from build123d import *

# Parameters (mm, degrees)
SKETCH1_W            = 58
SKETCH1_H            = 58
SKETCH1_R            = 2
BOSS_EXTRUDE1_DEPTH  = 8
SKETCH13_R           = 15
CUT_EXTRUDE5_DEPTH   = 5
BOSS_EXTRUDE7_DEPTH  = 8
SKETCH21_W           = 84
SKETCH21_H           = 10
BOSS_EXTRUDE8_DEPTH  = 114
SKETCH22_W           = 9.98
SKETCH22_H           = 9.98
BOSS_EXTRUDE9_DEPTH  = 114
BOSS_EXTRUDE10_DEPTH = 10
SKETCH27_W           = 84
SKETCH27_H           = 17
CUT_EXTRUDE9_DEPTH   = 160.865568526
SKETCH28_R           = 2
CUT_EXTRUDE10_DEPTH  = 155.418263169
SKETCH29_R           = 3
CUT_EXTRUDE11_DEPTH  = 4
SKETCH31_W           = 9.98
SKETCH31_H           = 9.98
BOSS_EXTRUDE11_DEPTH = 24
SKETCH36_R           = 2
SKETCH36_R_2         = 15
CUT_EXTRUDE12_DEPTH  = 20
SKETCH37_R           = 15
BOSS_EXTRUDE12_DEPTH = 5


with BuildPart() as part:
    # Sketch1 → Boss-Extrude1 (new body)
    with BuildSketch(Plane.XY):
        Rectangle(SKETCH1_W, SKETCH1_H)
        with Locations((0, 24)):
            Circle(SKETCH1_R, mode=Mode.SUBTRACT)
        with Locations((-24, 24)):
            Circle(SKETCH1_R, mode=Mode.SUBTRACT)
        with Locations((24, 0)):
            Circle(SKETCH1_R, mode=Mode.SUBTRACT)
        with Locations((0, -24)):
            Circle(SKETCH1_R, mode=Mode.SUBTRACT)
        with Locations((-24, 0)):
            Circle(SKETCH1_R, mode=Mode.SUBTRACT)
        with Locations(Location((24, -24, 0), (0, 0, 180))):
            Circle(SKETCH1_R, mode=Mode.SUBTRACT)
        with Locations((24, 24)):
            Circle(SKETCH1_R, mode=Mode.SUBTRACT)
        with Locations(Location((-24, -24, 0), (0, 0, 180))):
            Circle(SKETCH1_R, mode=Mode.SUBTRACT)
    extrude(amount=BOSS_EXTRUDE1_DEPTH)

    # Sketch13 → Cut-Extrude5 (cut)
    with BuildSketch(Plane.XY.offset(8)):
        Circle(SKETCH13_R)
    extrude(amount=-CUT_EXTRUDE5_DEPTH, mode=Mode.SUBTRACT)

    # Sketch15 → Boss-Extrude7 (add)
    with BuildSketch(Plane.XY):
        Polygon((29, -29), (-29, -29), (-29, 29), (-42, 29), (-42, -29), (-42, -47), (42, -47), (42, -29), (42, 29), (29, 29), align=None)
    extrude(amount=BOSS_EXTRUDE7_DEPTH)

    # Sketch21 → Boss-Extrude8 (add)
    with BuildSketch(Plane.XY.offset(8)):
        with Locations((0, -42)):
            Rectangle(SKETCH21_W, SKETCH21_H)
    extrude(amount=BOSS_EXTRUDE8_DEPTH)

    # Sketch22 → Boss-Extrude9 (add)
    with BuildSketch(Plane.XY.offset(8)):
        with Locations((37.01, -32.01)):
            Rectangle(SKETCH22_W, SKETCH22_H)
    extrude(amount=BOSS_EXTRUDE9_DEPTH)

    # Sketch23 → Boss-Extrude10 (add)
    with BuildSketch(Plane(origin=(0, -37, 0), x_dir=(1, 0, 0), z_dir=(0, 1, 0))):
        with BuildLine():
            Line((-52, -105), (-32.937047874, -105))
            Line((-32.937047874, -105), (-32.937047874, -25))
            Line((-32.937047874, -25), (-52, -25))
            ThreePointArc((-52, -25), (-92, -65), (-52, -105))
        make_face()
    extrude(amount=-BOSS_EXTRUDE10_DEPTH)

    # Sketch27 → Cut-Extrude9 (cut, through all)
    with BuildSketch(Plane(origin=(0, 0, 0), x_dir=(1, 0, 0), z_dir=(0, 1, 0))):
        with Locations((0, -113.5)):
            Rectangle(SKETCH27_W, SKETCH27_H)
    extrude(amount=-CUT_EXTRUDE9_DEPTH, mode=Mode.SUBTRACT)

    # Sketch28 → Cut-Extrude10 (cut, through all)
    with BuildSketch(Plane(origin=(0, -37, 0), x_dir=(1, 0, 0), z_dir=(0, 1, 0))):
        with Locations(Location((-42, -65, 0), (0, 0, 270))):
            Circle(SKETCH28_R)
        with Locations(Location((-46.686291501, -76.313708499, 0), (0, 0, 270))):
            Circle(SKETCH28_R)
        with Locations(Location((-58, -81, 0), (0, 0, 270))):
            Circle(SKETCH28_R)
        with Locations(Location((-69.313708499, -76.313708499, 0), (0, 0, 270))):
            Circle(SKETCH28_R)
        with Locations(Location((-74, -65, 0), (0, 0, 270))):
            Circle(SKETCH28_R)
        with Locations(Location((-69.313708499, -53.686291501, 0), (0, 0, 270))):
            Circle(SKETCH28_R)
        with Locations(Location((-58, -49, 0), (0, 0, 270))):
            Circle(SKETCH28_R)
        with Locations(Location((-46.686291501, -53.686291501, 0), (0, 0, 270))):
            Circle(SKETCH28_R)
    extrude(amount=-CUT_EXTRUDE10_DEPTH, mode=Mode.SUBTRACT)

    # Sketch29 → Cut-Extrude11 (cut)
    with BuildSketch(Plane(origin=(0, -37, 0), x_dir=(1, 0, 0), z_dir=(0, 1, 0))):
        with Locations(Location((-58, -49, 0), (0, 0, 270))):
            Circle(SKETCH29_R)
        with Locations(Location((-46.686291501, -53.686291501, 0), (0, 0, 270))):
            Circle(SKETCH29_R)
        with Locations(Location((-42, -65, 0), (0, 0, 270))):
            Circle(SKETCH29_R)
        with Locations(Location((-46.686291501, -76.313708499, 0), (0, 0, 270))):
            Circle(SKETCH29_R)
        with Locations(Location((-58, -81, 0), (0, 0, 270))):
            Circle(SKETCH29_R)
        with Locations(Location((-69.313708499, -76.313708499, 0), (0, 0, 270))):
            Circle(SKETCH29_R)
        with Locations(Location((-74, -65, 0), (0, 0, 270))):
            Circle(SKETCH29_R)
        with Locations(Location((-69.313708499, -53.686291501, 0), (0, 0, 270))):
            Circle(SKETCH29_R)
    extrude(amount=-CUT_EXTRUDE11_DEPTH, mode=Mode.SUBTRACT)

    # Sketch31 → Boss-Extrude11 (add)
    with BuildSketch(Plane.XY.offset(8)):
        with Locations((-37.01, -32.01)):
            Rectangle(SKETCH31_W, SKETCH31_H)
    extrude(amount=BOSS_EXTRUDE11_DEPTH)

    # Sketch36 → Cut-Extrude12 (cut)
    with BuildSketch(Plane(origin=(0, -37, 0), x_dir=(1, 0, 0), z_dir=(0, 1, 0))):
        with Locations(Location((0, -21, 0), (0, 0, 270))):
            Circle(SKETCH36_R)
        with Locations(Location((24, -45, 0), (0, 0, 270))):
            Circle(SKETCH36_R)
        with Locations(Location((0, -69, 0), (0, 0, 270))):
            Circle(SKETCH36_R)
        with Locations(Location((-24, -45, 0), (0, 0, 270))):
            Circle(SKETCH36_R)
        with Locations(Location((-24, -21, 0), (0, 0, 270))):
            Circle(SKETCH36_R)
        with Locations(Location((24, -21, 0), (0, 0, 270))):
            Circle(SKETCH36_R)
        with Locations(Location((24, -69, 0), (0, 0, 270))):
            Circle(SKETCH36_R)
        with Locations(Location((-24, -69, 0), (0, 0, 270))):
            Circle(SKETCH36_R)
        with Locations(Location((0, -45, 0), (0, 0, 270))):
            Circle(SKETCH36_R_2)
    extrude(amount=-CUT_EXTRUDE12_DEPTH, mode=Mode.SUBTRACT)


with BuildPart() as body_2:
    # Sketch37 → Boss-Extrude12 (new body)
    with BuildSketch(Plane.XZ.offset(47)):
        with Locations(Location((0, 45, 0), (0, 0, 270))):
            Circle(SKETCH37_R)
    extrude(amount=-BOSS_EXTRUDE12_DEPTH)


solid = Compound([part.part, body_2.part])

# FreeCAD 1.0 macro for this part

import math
import FreeCAD as App
import Part
import Sketcher
Q = App.Units.Quantity

doc = App.newDocument("Part")
body = doc.addObject("PartDesign::Body", "Body")

# Sketch on XY plane
sketch1 = body.newObject("Sketcher::SketchObject", "Sketch")
sketch1.AttachmentSupport = (doc.getObject("XY_Plane"), [""])
sketch1.MapMode = "FlatFace"
sketch1.addGeometry([
    Part.LineSegment(App.Vector(-29, 29, 0), App.Vector(-29, -29, 0)),  # 0
    Part.LineSegment(App.Vector(-29, -29, 0), App.Vector(29, -29, 0)),  # 1
    Part.LineSegment(App.Vector(29, -29, 0), App.Vector(29, 29, 0)),  # 2
    Part.LineSegment(App.Vector(29, 29, 0), App.Vector(-29, 29, 0)),  # 3
    Part.Circle(App.Vector(-24, -24, 0), App.Vector(0, 0, 1), 2),  # 4
    Part.Circle(App.Vector(0, -24, 0), App.Vector(0, 0, 1), 2),  # 5
    Part.Circle(App.Vector(24, -24, 0), App.Vector(0, 0, 1), 2),  # 6
    Part.Circle(App.Vector(-24, 0, 0), App.Vector(0, 0, 1), 2),  # 7
    Part.Circle(App.Vector(-24, 24, 0), App.Vector(0, 0, 1), 2),  # 8
    Part.Circle(App.Vector(24, 0, 0), App.Vector(0, 0, 1), 2),  # 9
    Part.Circle(App.Vector(0, 24, 0), App.Vector(0, 0, 1), 2),  # 10
    Part.Circle(App.Vector(24, 24, 0), App.Vector(0, 0, 1), 2),  # 11
], False)
sketch1.addConstraint([
    Sketcher.Constraint("Coincident", 0, 2, 1, 1),
    Sketcher.Constraint("Coincident", 1, 2, 2, 1),
    Sketcher.Constraint("Coincident", 2, 2, 3, 1),
    Sketcher.Constraint("Coincident", 3, 2, 0, 1),
    Sketcher.Constraint("Vertical", 0),
    Sketcher.Constraint("Horizontal", 1),
    Sketcher.Constraint("Vertical", 2),
    Sketcher.Constraint("Horizontal", 3),
    Sketcher.Constraint("Equal", 4, 5),
    Sketcher.Constraint("Equal", 5, 6),
    Sketcher.Constraint("Equal", 6, 7),
    Sketcher.Constraint("Equal", 7, 8),
    Sketcher.Constraint("Equal", 8, 9),
    Sketcher.Constraint("Equal", 9, 10),
    Sketcher.Constraint("Equal", 10, 11),
    Sketcher.Constraint("Symmetric", 6, 3, 8, 3, -1, 1),
    Sketcher.Constraint("Symmetric", 7, 3, 9, 3, -1, 1),
    Sketcher.Constraint("Symmetric", 5, 3, 10, 3, -1, 1),
    Sketcher.Constraint("Symmetric", 4, 3, 11, 3, -1, 1),
    Sketcher.Constraint("Symmetric", 0, 2, 2, 2, -1, 1),
    Sketcher.Constraint("Symmetric", 4, 3, 6, 3, -2),
    Sketcher.Constraint("PointOnObject", 5, 3, -2),
    Sketcher.Constraint("PointOnObject", 7, 3, -1),
    Sketcher.Constraint("Horizontal", 4, 3, 5, 3),
    Sketcher.Constraint("Vertical", 4, 3, 7, 3),
    Sketcher.Constraint("Equal", 3, 0),
    Sketcher.Constraint("Diameter", 4, Q("4 mm")),
    Sketcher.Constraint("DistanceX", 1, 1, 1, 2, Q("58 mm")),
    Sketcher.Constraint("DistanceX", 4, 3, -1, 1, Q("24 mm")),
    Sketcher.Constraint("DistanceY", 4, 3, -1, 1, Q("24 mm")),
])
pad1 = body.newObject("PartDesign::Pad", "Pad")
pad1.Profile = sketch1
pad1.Length = 8

# Sketch on XY plane
sketch2 = body.newObject("Sketcher::SketchObject", "Sketch001")
sketch2.AttachmentSupport = (doc.getObject("XY_Plane"), [""])
sketch2.MapMode = "FlatFace"
sketch2.AttachmentOffset = App.Placement(App.Vector(0, 0, 8), App.Rotation())
sketch2.addGeometry(Part.Circle(App.Vector(0, 0, 0), App.Vector(0, 0, 1), 15), False)
sketch2.addConstraint([
    Sketcher.Constraint("Coincident", 0, 3, -1, 1),
    Sketcher.Constraint("Diameter", 0, Q("30 mm")),
])
pocket1 = body.newObject("PartDesign::Pocket", "Pocket")
pocket1.Profile = sketch2
pocket1.Length = 5

# Sketch on XY plane
sketch3 = body.newObject("Sketcher::SketchObject", "Sketch002")
sketch3.AttachmentSupport = (doc.getObject("XY_Plane"), [""])
sketch3.MapMode = "FlatFace"
sketch3.addGeometry([
    Part.LineSegment(App.Vector(29, -29, 0), App.Vector(-29, -29, 0)),  # 0
    Part.LineSegment(App.Vector(-29, -29, 0), App.Vector(-29, 29, 0)),  # 1
    Part.LineSegment(App.Vector(-29, 29, 0), App.Vector(-42, 29, 0)),  # 2
    Part.LineSegment(App.Vector(-42, 29, 0), App.Vector(-42, -47, 0)),  # 3
    Part.LineSegment(App.Vector(-42, -47, 0), App.Vector(42, -47, 0)),  # 4
    Part.LineSegment(App.Vector(42, -47, 0), App.Vector(42, 29, 0)),  # 5
    Part.LineSegment(App.Vector(42, 29, 0), App.Vector(29, 29, 0)),  # 6
    Part.LineSegment(App.Vector(29, 29, 0), App.Vector(29, -29, 0)),  # 7
], False)
sketch3.addConstraint([
    Sketcher.Constraint("Coincident", 0, 2, 1, 1),
    Sketcher.Constraint("Coincident", 1, 2, 2, 1),
    Sketcher.Constraint("Coincident", 2, 2, 3, 1),
    Sketcher.Constraint("Coincident", 3, 2, 4, 1),
    Sketcher.Constraint("Coincident", 4, 2, 5, 1),
    Sketcher.Constraint("Coincident", 5, 2, 6, 1),
    Sketcher.Constraint("Coincident", 6, 2, 7, 1),
    Sketcher.Constraint("Coincident", 7, 2, 0, 1),
    Sketcher.Constraint("Horizontal", 0),
    Sketcher.Constraint("Vertical", 1),
    Sketcher.Constraint("Horizontal", 2),
    Sketcher.Constraint("Vertical", 3),
    Sketcher.Constraint("Horizontal", 4),
    Sketcher.Constraint("Vertical", 5),
    Sketcher.Constraint("Horizontal", 6),
    Sketcher.Constraint("Vertical", 7),
    Sketcher.Constraint("Symmetric", 0, 2, 6, 2, -1, 1),
    Sketcher.Constraint("Symmetric", 2, 2, 5, 2, -2),
    Sketcher.Constraint("Equal", 0, 1),
    Sketcher.Constraint("DistanceX", 0, 2, 0, 1, Q("58 mm")),
    Sketcher.Constraint("DistanceX", 2, 2, 2, 1, Q("13 mm")),
    Sketcher.Constraint("DistanceY", 3, 2, 3, 1, Q("76 mm")),
])
pad2 = body.newObject("PartDesign::Pad", "Pad001")
pad2.Profile = sketch3
pad2.Length = 8

# Sketch on XY plane
sketch4 = body.newObject("Sketcher::SketchObject", "Sketch003")
sketch4.AttachmentSupport = (doc.getObject("XY_Plane"), [""])
sketch4.MapMode = "FlatFace"
sketch4.AttachmentOffset = App.Placement(App.Vector(0, 0, 8), App.Rotation())
sketch4.addGeometry([
    Part.LineSegment(App.Vector(-42, -37, 0), App.Vector(-42, -47, 0)),
    Part.LineSegment(App.Vector(-42, -47, 0), App.Vector(42, -47, 0)),
    Part.LineSegment(App.Vector(42, -47, 0), App.Vector(42, -37, 0)),
    Part.LineSegment(App.Vector(42, -37, 0), App.Vector(-42, -37, 0)),
], False)
sketch4.addConstraint([
    Sketcher.Constraint("Coincident", 0, 2, 1, 1),
    Sketcher.Constraint("Coincident", 1, 2, 2, 1),
    Sketcher.Constraint("Coincident", 2, 2, 3, 1),
    Sketcher.Constraint("Coincident", 3, 2, 0, 1),
    Sketcher.Constraint("Vertical", 0),
    Sketcher.Constraint("Horizontal", 1),
    Sketcher.Constraint("Vertical", 2),
    Sketcher.Constraint("Horizontal", 3),
    Sketcher.Constraint("DistanceX", 1, 1, 1, 2, Q("84 mm")),
    Sketcher.Constraint("DistanceY", 0, 2, 0, 1, Q("10 mm")),
    Sketcher.Constraint("DistanceX", 0, 2, -1, 1, Q("42 mm")),
    Sketcher.Constraint("DistanceY", 0, 2, -1, 1, Q("47 mm")),
])
pad3 = body.newObject("PartDesign::Pad", "Pad002")
pad3.Profile = sketch4
pad3.Length = 114

# Sketch on XY plane
sketch5 = body.newObject("Sketcher::SketchObject", "Sketch004")
sketch5.AttachmentSupport = (doc.getObject("XY_Plane"), [""])
sketch5.MapMode = "FlatFace"
sketch5.AttachmentOffset = App.Placement(App.Vector(0, 0, 8), App.Rotation())
sketch5.addGeometry([
    Part.LineSegment(App.Vector(32.02, -27.02, 0), App.Vector(32.02, -37, 0)),
    Part.LineSegment(App.Vector(32.02, -37, 0), App.Vector(42, -37, 0)),
    Part.LineSegment(App.Vector(42, -37, 0), App.Vector(42, -27.02, 0)),
    Part.LineSegment(App.Vector(42, -27.02, 0), App.Vector(32.02, -27.02, 0)),
], False)
sketch5.addConstraint([
    Sketcher.Constraint("Coincident", 0, 2, 1, 1),
    Sketcher.Constraint("Coincident", 1, 2, 2, 1),
    Sketcher.Constraint("Coincident", 2, 2, 3, 1),
    Sketcher.Constraint("Coincident", 3, 2, 0, 1),
    Sketcher.Constraint("Vertical", 0),
    Sketcher.Constraint("Horizontal", 1),
    Sketcher.Constraint("Vertical", 2),
    Sketcher.Constraint("Horizontal", 3),
    Sketcher.Constraint("Equal", 3, 0),
    Sketcher.Constraint("DistanceY", 0, 2, -1, 1, Q("37 mm")),
    Sketcher.Constraint("DistanceX", -1, 1, 1, 2, Q("42 mm")),
    Sketcher.Constraint("DistanceX", 1, 1, 1, 2, Q("9.98 mm")),
])
pad4 = body.newObject("PartDesign::Pad", "Pad003")
pad4.Profile = sketch5
pad4.Length = 114

# Sketch on XZ plane
sketch6 = body.newObject("Sketcher::SketchObject", "Sketch005")
sketch6.AttachmentSupport = (doc.getObject("XZ_Plane"), [""])
sketch6.MapMode = "FlatFace"
sketch6.AttachmentOffset = App.Placement(App.Vector(0, 0, 37), App.Rotation())
sketch6.addGeometry([
    Part.LineSegment(App.Vector(-52, 105, 0), App.Vector(-32.937048, 105, 0)),
    Part.LineSegment(App.Vector(-32.937048, 105, 0), App.Vector(-32.937048, 25, 0)),
    Part.LineSegment(App.Vector(-32.937048, 25, 0), App.Vector(-52, 25, 0)),
    Part.ArcOfCircle(Part.Circle(App.Vector(-52, 65, 0), App.Vector(0, 0, 1), 40), math.radians(90), math.radians(270)),
], False)
sketch6.addConstraint([
    Sketcher.Constraint("Coincident", 0, 2, 1, 1),
    Sketcher.Constraint("Coincident", 1, 2, 2, 1),
    Sketcher.Constraint("Tangent", 2, 2, 3, 2),
    Sketcher.Constraint("Tangent", 3, 1, 0, 1),
    Sketcher.Constraint("Horizontal", 0),
    Sketcher.Constraint("Vertical", 1),
    Sketcher.Constraint("Horizontal", 2),
    Sketcher.Constraint("Radius", 3, Q("40 mm")),
    Sketcher.Constraint("DistanceX", 3, 3, -1, 1, Q("52 mm")),
    Sketcher.Constraint("DistanceY", -1, 1, 3, 3, Q("65 mm")),
    Sketcher.Constraint("DistanceX", 0, 1, 0, 2, Q("19.062952 mm")),
])
pad5 = body.newObject("PartDesign::Pad", "Pad004")
pad5.Profile = sketch6
pad5.Length = 10

# Sketch on XZ plane
sketch7 = body.newObject("Sketcher::SketchObject", "Sketch006")
sketch7.AttachmentSupport = (doc.getObject("XZ_Plane"), [""])
sketch7.MapMode = "FlatFace"
sketch7.addGeometry([
    Part.LineSegment(App.Vector(-42, 105, 0), App.Vector(-42, 122, 0)),
    Part.LineSegment(App.Vector(-42, 122, 0), App.Vector(42, 122, 0)),
    Part.LineSegment(App.Vector(42, 122, 0), App.Vector(42, 105, 0)),
    Part.LineSegment(App.Vector(42, 105, 0), App.Vector(-42, 105, 0)),
], False)
sketch7.addConstraint([
    Sketcher.Constraint("Coincident", 0, 2, 1, 1),
    Sketcher.Constraint("Coincident", 1, 2, 2, 1),
    Sketcher.Constraint("Coincident", 2, 2, 3, 1),
    Sketcher.Constraint("Coincident", 3, 2, 0, 1),
    Sketcher.Constraint("Vertical", 0),
    Sketcher.Constraint("Horizontal", 1),
    Sketcher.Constraint("Vertical", 2),
    Sketcher.Constraint("Horizontal", 3),
    Sketcher.Constraint("DistanceX", 1, 1, 1, 2, Q("84 mm")),
    Sketcher.Constraint("DistanceY", 0, 1, 0, 2, Q("17 mm")),
    Sketcher.Constraint("DistanceX", 0, 2, -1, 1, Q("42 mm")),
    Sketcher.Constraint("DistanceY", -1, 1, 0, 2, Q("122 mm")),
])
pocket2 = body.newObject("PartDesign::Pocket", "Pocket001")
pocket2.Profile = sketch7
pocket2.Type = "ThroughAll"
pocket2.Reversed = True

# Sketch on XZ plane
sketch8 = body.newObject("Sketcher::SketchObject", "Sketch007")
sketch8.AttachmentSupport = (doc.getObject("XZ_Plane"), [""])
sketch8.MapMode = "FlatFace"
sketch8.AttachmentOffset = App.Placement(App.Vector(0, 0, 37), App.Rotation())
sketch8.addGeometry([
    Part.Circle(App.Vector(-42, 65, 0), App.Vector(0, 0, 1), 2),  # 0
    Part.Circle(App.Vector(-46.686292, 76.313708, 0), App.Vector(0, 0, 1), 2),  # 1
    Part.Circle(App.Vector(-58, 81, 0), App.Vector(0, 0, 1), 2),  # 2
    Part.Circle(App.Vector(-69.313708, 76.313708, 0), App.Vector(0, 0, 1), 2),  # 3
    Part.Circle(App.Vector(-74, 65, 0), App.Vector(0, 0, 1), 2),  # 4
    Part.Circle(App.Vector(-69.313708, 53.686292, 0), App.Vector(0, 0, 1), 2),  # 5
    Part.Circle(App.Vector(-58, 49, 0), App.Vector(0, 0, 1), 2),  # 6
    Part.Circle(App.Vector(-46.686292, 53.686292, 0), App.Vector(0, 0, 1), 2),  # 7
], False)
sketch8.addConstraint([
    Sketcher.Constraint("Equal", 0, 1),
    Sketcher.Constraint("Equal", 1, 2),
    Sketcher.Constraint("Equal", 2, 3),
    Sketcher.Constraint("Equal", 3, 4),
    Sketcher.Constraint("Equal", 4, 5),
    Sketcher.Constraint("Equal", 5, 6),
    Sketcher.Constraint("Equal", 6, 7),
    Sketcher.Constraint("Horizontal", 1, 3, 3, 3),
    Sketcher.Constraint("Horizontal", 0, 3, 4, 3),
    Sketcher.Constraint("Horizontal", 5, 3, 7, 3),
    Sketcher.Constraint("Vertical", 3, 3, 5, 3),
    Sketcher.Constraint("Vertical", 2, 3, 6, 3),
    Sketcher.Constraint("Vertical", 1, 3, 7, 3),
    Sketcher.Constraint("Diameter", 0, Q("4 mm")),
    Sketcher.Constraint("DistanceX", 0, 3, -1, 1, Q("42 mm")),
    Sketcher.Constraint("DistanceY", -1, 1, 0, 3, Q("65 mm")),
    Sketcher.Constraint("DistanceX", 2, 3, -1, 1, Q("58 mm")),
    Sketcher.Constraint("DistanceY", -1, 1, 2, 3, Q("81 mm")),
    Sketcher.Constraint("DistanceX", 4, 3, -1, 1, Q("74 mm")),
    Sketcher.Constraint("DistanceY", -1, 1, 6, 3, Q("49 mm")),
    Sketcher.Constraint("DistanceX", 1, 3, -1, 1, Q("46.686292 mm")),
    Sketcher.Constraint("DistanceY", -1, 1, 1, 3, Q("76.313708 mm")),
    Sketcher.Constraint("DistanceX", 3, 3, -1, 1, Q("69.313708 mm")),
    Sketcher.Constraint("DistanceY", -1, 1, 5, 3, Q("53.686292 mm")),
])
pocket3 = body.newObject("PartDesign::Pocket", "Pocket002")
pocket3.Profile = sketch8
pocket3.Type = "ThroughAll"
pocket3.Reversed = True

# Sketch on XZ plane
sketch9 = body.newObject("Sketcher::SketchObject", "Sketch008")
sketch9.AttachmentSupport = (doc.getObject("XZ_Plane"), [""])
sketch9.MapMode = "FlatFace"
sketch9.AttachmentOffset = App.Placement(App.Vector(0, 0, 37), App.Rotation())
sketch9.addGeometry([
    Part.Circle(App.Vector(-58, 49, 0), App.Vector(0, 0, 1), 3),  # 0
    Part.Circle(App.Vector(-46.686292, 53.686292, 0), App.Vector(0, 0, 1), 3),  # 1
    Part.Circle(App.Vector(-42, 65, 0), App.Vector(0, 0, 1), 3),  # 2
    Part.Circle(App.Vector(-46.686292, 76.313708, 0), App.Vector(0, 0, 1), 3),  # 3
    Part.Circle(App.Vector(-58, 81, 0), App.Vector(0, 0, 1), 3),  # 4
    Part.Circle(App.Vector(-69.313708, 76.313708, 0), App.Vector(0, 0, 1), 3),  # 5
    Part.Circle(App.Vector(-74, 65, 0), App.Vector(0, 0, 1), 3),  # 6
    Part.Circle(App.Vector(-69.313708, 53.686292, 0), App.Vector(0, 0, 1), 3),  # 7
], False)
sketch9.addConstraint([
    Sketcher.Constraint("Equal", 0, 1),
    Sketcher.Constraint("Equal", 1, 2),
    Sketcher.Constraint("Equal", 2, 3),
    Sketcher.Constraint("Equal", 3, 4),
    Sketcher.Constraint("Equal", 4, 5),
    Sketcher.Constraint("Equal", 5, 6),
    Sketcher.Constraint("Equal", 6, 7),
    Sketcher.Constraint("Horizontal", 3, 3, 5, 3),
    Sketcher.Constraint("Horizontal", 2, 3, 6, 3),
    Sketcher.Constraint("Horizontal", 1, 3, 7, 3),
    Sketcher.Constraint("Vertical", 1, 3, 3, 3),
    Sketcher.Constraint("Vertical", 0, 3, 4, 3),
    Sketcher.Constraint("Vertical", 5, 3, 7, 3),
    Sketcher.Constraint("Diameter", 0, Q("6 mm")),
    Sketcher.Constraint("DistanceX", 0, 3, -1, 1, Q("58 mm")),
    Sketcher.Constraint("DistanceY", -1, 1, 0, 3, Q("49 mm")),
    Sketcher.Constraint("DistanceX", 2, 3, -1, 1, Q("42 mm")),
    Sketcher.Constraint("DistanceY", -1, 1, 2, 3, Q("65 mm")),
    Sketcher.Constraint("DistanceY", -1, 1, 4, 3, Q("81 mm")),
    Sketcher.Constraint("DistanceX", 6, 3, -1, 1, Q("74 mm")),
    Sketcher.Constraint("DistanceX", 1, 3, -1, 1, Q("46.686292 mm")),
    Sketcher.Constraint("DistanceY", -1, 1, 1, 3, Q("53.686292 mm")),
    Sketcher.Constraint("DistanceY", -1, 1, 3, 3, Q("76.313708 mm")),
    Sketcher.Constraint("DistanceX", 5, 3, -1, 1, Q("69.313708 mm")),
])
pocket4 = body.newObject("PartDesign::Pocket", "Pocket003")
pocket4.Profile = sketch9
pocket4.Length = 4
pocket4.Reversed = True

# Sketch on XY plane
sketch10 = body.newObject("Sketcher::SketchObject", "Sketch009")
sketch10.AttachmentSupport = (doc.getObject("XY_Plane"), [""])
sketch10.MapMode = "FlatFace"
sketch10.AttachmentOffset = App.Placement(App.Vector(0, 0, 8), App.Rotation())
sketch10.addGeometry([
    Part.LineSegment(App.Vector(-42, -27.02, 0), App.Vector(-42, -37, 0)),
    Part.LineSegment(App.Vector(-42, -37, 0), App.Vector(-32.02, -37, 0)),
    Part.LineSegment(App.Vector(-32.02, -37, 0), App.Vector(-32.02, -27.02, 0)),
    Part.LineSegment(App.Vector(-32.02, -27.02, 0), App.Vector(-42, -27.02, 0)),
], False)
sketch10.addConstraint([
    Sketcher.Constraint("Coincident", 0, 2, 1, 1),
    Sketcher.Constraint("Coincident", 1, 2, 2, 1),
    Sketcher.Constraint("Coincident", 2, 2, 3, 1),
    Sketcher.Constraint("Coincident", 3, 2, 0, 1),
    Sketcher.Constraint("Vertical", 0),
    Sketcher.Constraint("Horizontal", 1),
    Sketcher.Constraint("Vertical", 2),
    Sketcher.Constraint("Horizontal", 3),
    Sketcher.Constraint("Equal", 3, 0),
    Sketcher.Constraint("DistanceX", 0, 2, -1, 1, Q("42 mm")),
    Sketcher.Constraint("DistanceY", 0, 2, -1, 1, Q("37 mm")),
    Sketcher.Constraint("DistanceX", 1, 1, 1, 2, Q("9.98 mm")),
])
pad6 = body.newObject("PartDesign::Pad", "Pad005")
pad6.Profile = sketch10
pad6.Length = 24

# Sketch on XZ plane
sketch11 = body.newObject("Sketcher::SketchObject", "Sketch010")
sketch11.AttachmentSupport = (doc.getObject("XZ_Plane"), [""])
sketch11.MapMode = "FlatFace"
sketch11.AttachmentOffset = App.Placement(App.Vector(0, 0, 37), App.Rotation())
sketch11.addGeometry([
    Part.Circle(App.Vector(0, 21, 0), App.Vector(0, 0, 1), 2),  # 0
    Part.Circle(App.Vector(24, 45, 0), App.Vector(0, 0, 1), 2),  # 1
    Part.Circle(App.Vector(0, 69, 0), App.Vector(0, 0, 1), 2),  # 2
    Part.Circle(App.Vector(-24, 45, 0), App.Vector(0, 0, 1), 2),  # 3
    Part.Circle(App.Vector(-24, 21, 0), App.Vector(0, 0, 1), 2),  # 4
    Part.Circle(App.Vector(24, 21, 0), App.Vector(0, 0, 1), 2),  # 5
    Part.Circle(App.Vector(24, 69, 0), App.Vector(0, 0, 1), 2),  # 6
    Part.Circle(App.Vector(-24, 69, 0), App.Vector(0, 0, 1), 2),  # 7
    Part.Circle(App.Vector(0, 45, 0), App.Vector(0, 0, 1), 15),  # 8
], False)
sketch11.addConstraint([
    Sketcher.Constraint("Equal", 0, 1),
    Sketcher.Constraint("Equal", 1, 2),
    Sketcher.Constraint("Equal", 2, 3),
    Sketcher.Constraint("Equal", 3, 4),
    Sketcher.Constraint("Equal", 4, 5),
    Sketcher.Constraint("Equal", 5, 6),
    Sketcher.Constraint("Equal", 6, 7),
    Sketcher.Constraint("Symmetric", 1, 3, 3, 3, -2),
    Sketcher.Constraint("Symmetric", 4, 3, 5, 3, -2),
    Sketcher.Constraint("Symmetric", 6, 3, 7, 3, -2),
    Sketcher.Constraint("PointOnObject", 0, 3, -2),
    Sketcher.Constraint("PointOnObject", 2, 3, -2),
    Sketcher.Constraint("PointOnObject", 8, 3, -2),
    Sketcher.Constraint("Horizontal", 0, 3, 4, 3),
    Sketcher.Constraint("Horizontal", 2, 3, 6, 3),
    Sketcher.Constraint("Horizontal", 3, 3, 8, 3),
    Sketcher.Constraint("Vertical", 3, 3, 4, 3),
    Sketcher.Constraint("Vertical", 5, 3, 6, 3),
    Sketcher.Constraint("Diameter", 0, Q("4 mm")),
    Sketcher.Constraint("Diameter", 8, Q("30 mm")),
    Sketcher.Constraint("DistanceY", -1, 1, 0, 3, Q("21 mm")),
    Sketcher.Constraint("DistanceX", -1, 1, 1, 3, Q("24 mm")),
    Sketcher.Constraint("DistanceY", -1, 1, 1, 3, Q("45 mm")),
    Sketcher.Constraint("DistanceY", -1, 1, 2, 3, Q("69 mm")),
])
pocket5 = body.newObject("PartDesign::Pocket", "Pocket004")
pocket5.Profile = sketch11
pocket5.Length = 20
pocket5.Reversed = True
body2 = doc.addObject("PartDesign::Body", "Body001")

# Sketch on XZ plane
sketch12 = body2.newObject("Sketcher::SketchObject", "Sketch011")
sketch12.AttachmentSupport = (doc.getObject("XZ_Plane001"), [""])
sketch12.MapMode = "FlatFace"
sketch12.AttachmentOffset = App.Placement(App.Vector(0, 0, 47), App.Rotation())
sketch12.addGeometry(Part.Circle(App.Vector(0, 45, 0), App.Vector(0, 0, 1), 15), False)
sketch12.addConstraint([
    Sketcher.Constraint("PointOnObject", 0, 3, -2),
    Sketcher.Constraint("Diameter", 0, Q("30 mm")),
    Sketcher.Constraint("DistanceY", -1, 1, 0, 3, Q("45 mm")),
])
pad7 = body2.newObject("PartDesign::Pad", "Pad006")
pad7.Profile = sketch12
pad7.Length = 5
pad7.Reversed = True

doc.recompute()
